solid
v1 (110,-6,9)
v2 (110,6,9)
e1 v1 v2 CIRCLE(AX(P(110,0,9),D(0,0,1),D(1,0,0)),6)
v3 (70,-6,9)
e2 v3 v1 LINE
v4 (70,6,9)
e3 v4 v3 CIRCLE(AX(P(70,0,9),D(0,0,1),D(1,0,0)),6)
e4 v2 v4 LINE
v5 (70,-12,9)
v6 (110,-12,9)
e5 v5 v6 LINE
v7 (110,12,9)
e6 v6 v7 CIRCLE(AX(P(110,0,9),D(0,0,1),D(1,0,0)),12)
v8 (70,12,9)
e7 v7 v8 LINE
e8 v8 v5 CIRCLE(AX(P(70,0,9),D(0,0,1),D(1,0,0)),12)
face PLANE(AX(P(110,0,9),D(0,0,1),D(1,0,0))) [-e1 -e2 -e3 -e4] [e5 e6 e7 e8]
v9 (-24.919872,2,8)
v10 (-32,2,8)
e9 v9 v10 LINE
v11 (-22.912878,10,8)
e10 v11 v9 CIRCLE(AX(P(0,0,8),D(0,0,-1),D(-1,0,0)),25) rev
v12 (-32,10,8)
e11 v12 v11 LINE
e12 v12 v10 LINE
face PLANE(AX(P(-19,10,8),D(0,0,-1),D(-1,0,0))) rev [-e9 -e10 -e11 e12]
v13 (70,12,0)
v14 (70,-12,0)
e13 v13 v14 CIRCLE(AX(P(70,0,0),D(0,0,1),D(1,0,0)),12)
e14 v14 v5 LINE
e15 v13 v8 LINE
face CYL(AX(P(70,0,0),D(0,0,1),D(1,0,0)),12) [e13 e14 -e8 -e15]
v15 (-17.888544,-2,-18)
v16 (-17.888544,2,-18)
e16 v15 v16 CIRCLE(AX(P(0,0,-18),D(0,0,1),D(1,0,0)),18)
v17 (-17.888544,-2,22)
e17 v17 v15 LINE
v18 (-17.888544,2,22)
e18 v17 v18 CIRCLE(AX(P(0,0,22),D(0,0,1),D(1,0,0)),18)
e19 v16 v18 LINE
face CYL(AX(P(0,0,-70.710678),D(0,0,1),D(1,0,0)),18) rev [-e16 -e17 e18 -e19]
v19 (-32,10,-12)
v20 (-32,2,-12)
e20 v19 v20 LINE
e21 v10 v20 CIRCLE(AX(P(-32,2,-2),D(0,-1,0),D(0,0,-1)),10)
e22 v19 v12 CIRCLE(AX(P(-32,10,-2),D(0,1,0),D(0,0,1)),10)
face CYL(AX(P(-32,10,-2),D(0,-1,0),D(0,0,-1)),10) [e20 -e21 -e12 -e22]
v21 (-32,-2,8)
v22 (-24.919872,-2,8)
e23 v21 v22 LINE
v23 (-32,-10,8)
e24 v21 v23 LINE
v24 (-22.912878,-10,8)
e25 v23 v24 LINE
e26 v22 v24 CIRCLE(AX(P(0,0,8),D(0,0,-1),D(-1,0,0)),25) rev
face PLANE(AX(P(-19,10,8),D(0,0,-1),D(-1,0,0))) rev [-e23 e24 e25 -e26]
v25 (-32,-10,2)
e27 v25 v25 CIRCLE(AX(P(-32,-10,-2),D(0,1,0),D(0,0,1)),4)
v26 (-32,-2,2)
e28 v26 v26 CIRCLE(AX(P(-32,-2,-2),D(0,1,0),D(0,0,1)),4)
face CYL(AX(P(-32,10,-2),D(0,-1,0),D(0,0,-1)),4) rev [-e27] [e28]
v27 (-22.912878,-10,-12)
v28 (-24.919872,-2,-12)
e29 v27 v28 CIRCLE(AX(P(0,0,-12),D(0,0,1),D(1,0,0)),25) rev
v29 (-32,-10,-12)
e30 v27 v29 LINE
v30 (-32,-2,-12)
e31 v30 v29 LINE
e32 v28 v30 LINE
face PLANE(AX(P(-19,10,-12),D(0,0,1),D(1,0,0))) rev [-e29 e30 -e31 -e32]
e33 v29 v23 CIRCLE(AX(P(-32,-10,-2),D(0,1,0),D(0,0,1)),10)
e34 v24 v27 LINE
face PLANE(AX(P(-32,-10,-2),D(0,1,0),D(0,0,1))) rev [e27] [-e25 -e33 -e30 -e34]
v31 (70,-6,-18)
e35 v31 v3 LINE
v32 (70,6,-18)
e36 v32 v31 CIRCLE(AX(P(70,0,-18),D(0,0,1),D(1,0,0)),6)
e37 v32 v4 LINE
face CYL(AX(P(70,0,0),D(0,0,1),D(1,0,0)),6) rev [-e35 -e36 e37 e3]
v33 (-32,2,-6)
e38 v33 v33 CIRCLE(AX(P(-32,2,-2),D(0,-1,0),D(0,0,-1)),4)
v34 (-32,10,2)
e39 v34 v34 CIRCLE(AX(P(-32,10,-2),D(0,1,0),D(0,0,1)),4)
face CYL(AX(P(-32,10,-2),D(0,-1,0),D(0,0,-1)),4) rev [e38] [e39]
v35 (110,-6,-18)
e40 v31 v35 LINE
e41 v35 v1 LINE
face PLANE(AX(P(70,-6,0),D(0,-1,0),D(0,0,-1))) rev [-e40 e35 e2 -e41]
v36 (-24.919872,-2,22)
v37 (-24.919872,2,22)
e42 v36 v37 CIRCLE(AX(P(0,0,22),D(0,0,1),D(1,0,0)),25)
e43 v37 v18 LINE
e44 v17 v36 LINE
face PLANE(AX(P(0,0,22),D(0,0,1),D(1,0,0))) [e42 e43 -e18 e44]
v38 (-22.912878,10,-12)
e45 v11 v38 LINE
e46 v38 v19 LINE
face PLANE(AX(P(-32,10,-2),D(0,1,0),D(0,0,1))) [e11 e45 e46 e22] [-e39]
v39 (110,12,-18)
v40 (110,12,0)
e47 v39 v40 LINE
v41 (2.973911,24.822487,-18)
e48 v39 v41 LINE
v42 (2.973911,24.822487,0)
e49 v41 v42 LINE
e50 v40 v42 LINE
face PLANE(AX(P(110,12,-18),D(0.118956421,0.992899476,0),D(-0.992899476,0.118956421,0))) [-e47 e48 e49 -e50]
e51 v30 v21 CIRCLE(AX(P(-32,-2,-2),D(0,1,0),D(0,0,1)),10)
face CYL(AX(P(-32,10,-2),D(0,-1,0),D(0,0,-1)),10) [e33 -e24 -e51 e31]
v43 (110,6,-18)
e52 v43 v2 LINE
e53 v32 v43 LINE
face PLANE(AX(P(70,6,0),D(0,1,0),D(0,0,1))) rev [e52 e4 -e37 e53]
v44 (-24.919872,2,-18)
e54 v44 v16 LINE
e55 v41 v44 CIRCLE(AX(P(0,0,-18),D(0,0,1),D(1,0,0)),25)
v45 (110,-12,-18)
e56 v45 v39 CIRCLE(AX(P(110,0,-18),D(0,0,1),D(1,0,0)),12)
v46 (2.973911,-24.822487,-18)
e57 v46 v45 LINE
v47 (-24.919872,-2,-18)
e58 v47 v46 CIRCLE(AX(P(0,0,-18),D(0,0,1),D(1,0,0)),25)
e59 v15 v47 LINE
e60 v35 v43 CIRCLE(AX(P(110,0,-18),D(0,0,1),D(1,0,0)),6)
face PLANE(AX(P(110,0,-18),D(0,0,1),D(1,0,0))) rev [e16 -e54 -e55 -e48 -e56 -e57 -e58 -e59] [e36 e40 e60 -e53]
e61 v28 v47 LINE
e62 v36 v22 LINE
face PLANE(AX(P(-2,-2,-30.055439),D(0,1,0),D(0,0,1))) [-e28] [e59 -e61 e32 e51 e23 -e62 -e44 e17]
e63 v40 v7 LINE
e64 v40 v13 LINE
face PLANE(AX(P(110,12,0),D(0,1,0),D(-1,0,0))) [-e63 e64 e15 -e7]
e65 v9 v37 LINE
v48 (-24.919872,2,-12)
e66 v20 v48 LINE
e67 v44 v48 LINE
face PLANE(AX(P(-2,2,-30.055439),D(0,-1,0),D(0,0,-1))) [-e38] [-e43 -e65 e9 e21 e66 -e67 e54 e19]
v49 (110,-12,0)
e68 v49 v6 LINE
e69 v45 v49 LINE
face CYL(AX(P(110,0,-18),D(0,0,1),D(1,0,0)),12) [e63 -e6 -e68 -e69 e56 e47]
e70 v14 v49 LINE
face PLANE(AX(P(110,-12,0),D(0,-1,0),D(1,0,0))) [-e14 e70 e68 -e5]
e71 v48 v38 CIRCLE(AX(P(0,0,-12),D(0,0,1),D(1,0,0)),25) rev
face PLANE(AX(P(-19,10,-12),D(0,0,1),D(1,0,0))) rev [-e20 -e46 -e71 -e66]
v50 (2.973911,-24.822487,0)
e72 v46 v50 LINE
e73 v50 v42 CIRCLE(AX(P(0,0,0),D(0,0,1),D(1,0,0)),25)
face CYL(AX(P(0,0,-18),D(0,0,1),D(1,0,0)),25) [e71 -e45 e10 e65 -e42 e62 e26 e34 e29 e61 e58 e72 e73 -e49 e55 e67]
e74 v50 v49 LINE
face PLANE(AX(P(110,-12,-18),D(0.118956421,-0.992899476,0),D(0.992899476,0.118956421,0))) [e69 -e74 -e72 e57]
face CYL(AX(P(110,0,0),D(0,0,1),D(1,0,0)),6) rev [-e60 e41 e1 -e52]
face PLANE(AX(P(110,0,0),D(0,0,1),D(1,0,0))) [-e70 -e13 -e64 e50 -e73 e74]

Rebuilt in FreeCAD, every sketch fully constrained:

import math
import FreeCAD as App
import Part
import Sketcher

V = App.Vector
Q = App.Units.Quantity


def add_polygon(sketch, points):
    """Adds a closed chain of lines whose ends are joined by coincident constraints."""
    first, n = sketch.GeometryCount, len(points)
    for a, b in zip(points, points[1:] + points[:1]):
        sketch.addGeometry(Part.LineSegment(App.Vector(*a, 0), App.Vector(*b, 0)), False)
    for i in range(n):
        sketch.addConstraint(Sketcher.Constraint("Coincident", first + i, 2, first + (i + 1) % n, 1))

doc = App.newDocument("Part")
body = doc.addObject("PartDesign::Body", "Body")

sketch1 = body.newObject("Sketcher::SketchObject", "Sketch")
sketch1.AttachmentSupport = (doc.getObject("XY_Plane"), [""])
sketch1.MapMode = "FlatFace"
sketch1.addGeometry(Part.LineSegment(V(110, 12, 0), V(3, 25, 0)), False)
sketch1.addGeometry(Part.ArcOfCircle(Part.Circle(V(0, 0, 0), V(0, 0, 1), 25), math.radians(83), math.radians(277)), False)
sketch1.addGeometry(Part.LineSegment(V(3, -25, 0), V(110, -12, 0)), False)
sketch1.addGeometry(Part.ArcOfCircle(Part.Circle(V(110, 0, 0), V(0, 0, 1), 12), math.radians(-90), math.radians(90)), False)
sketch1.addConstraint(Sketcher.Constraint("Tangent", 0, 2, 1, 1))
sketch1.addConstraint(Sketcher.Constraint("Tangent", 1, 2, 2, 1))
sketch1.addConstraint(Sketcher.Constraint("Coincident", 2, 2, 3, 1))
sketch1.addConstraint(Sketcher.Constraint("Coincident", 3, 2, 0, 1))
sketch1.addConstraint(Sketcher.Constraint("Coincident", 1, 3, -1, 1))
sketch1.addConstraint(Sketcher.Constraint("Symmetric", 2, 2, 3, 2, -1))
sketch1.addConstraint(Sketcher.Constraint("Vertical", 3, 3, 2, 2))
sketch1.addConstraint(Sketcher.Constraint("Radius", 1, Q("25 mm")))
sketch1.addConstraint(Sketcher.Constraint("Radius", 3, Q("12 mm")))
sketch1.addConstraint(Sketcher.Constraint("DistanceX", -1, 1, 3, 3, Q("110 mm")))
pad1 = body.newObject("PartDesign::Pad", "Pad")
pad1.Profile = sketch1
pad1.Length = 18
pad1.Reversed = True

sketch2 = body.newObject("Sketcher::SketchObject", "Sketch001")
sketch2.AttachmentSupport = (doc.getObject("XY_Plane"), [""])
sketch2.MapMode = "FlatFace"
sketch2.AttachmentOffset = App.Placement(V(0, 0, 9), App.Rotation())
sketch2.addGeometry(Part.LineSegment(V(70, -12, 0), V(110, -12, 0)), False)
sketch2.addGeometry(Part.ArcOfCircle(Part.Circle(V(110, 0, 0), V(0, 0, 1), 12), math.radians(-90), math.radians(90)), False)
sketch2.addGeometry(Part.LineSegment(V(110, 12, 0), V(70, 12, 0)), False)
sketch2.addGeometry(Part.ArcOfCircle(Part.Circle(V(70, 0, 0), V(0, 0, 1), 12), math.radians(90), math.radians(270)), False)
sketch2.addGeometry(Part.LineSegment(V(70, 6, 0), V(110, 6, 0)), False)
sketch2.addGeometry(Part.ArcOfCircle(Part.Circle(V(110, 0, 0), V(0, 0, 1), 6), math.radians(-90), math.radians(90)), False)
sketch2.addGeometry(Part.LineSegment(V(110, -6, 0), V(70, -6, 0)), False)
sketch2.addGeometry(Part.ArcOfCircle(Part.Circle(V(70, 0, 0), V(0, 0, 1), 6), math.radians(90), math.radians(270)), False)
sketch2.addConstraint(Sketcher.Constraint("Tangent", 0, 2, 1, 1))
sketch2.addConstraint(Sketcher.Constraint("Tangent", 1, 2, 2, 1))
sketch2.addConstraint(Sketcher.Constraint("Tangent", 2, 2, 3, 1))
sketch2.addConstraint(Sketcher.Constraint("Tangent", 3, 2, 0, 1))
sketch2.addConstraint(Sketcher.Constraint("Tangent", 4, 2, 5, 2))
sketch2.addConstraint(Sketcher.Constraint("Tangent", 5, 1, 6, 1))
sketch2.addConstraint(Sketcher.Constraint("Tangent", 6, 2, 7, 2))
sketch2.addConstraint(Sketcher.Constraint("Tangent", 7, 1, 4, 1))
sketch2.addConstraint(Sketcher.Constraint("Horizontal", 0))
sketch2.addConstraint(Sketcher.Constraint("Horizontal", 2))
sketch2.addConstraint(Sketcher.Constraint("Horizontal", 4))
sketch2.addConstraint(Sketcher.Constraint("Horizontal", 6))
sketch2.addConstraint(Sketcher.Constraint("Coincident", 5, 3, 1, 3))
sketch2.addConstraint(Sketcher.Constraint("PointOnObject", 1, 3, -1))
sketch2.addConstraint(Sketcher.Constraint("Vertical", 7, 3, 2, 2))
sketch2.addConstraint(Sketcher.Constraint("Radius", 1, Q("12 mm")))
sketch2.addConstraint(Sketcher.Constraint("Radius", 5, Q("6 mm")))
sketch2.addConstraint(Sketcher.Constraint("DistanceX", 0, 1, 0, 2, Q("40 mm")))
sketch2.addConstraint(Sketcher.Constraint("DistanceX", -1, 1, 1, 3, Q("110 mm")))
pad2 = body.newObject("PartDesign::Pad", "Pad001")
pad2.Profile = sketch2
pad2.Length = 9
pad2.Reversed = True

sketch3 = body.newObject("Sketcher::SketchObject", "Sketch002")
sketch3.AttachmentSupport = (doc.getObject("XY_Plane"), [""])
sketch3.MapMode = "FlatFace"
sketch3.AttachmentOffset = App.Placement(V(0, 0, 9), App.Rotation())
sketch3.addGeometry(Part.LineSegment(V(70, -6, 0), V(110, -6, 0)), False)
sketch3.addGeometry(Part.ArcOfCircle(Part.Circle(V(110, 0, 0), V(0, 0, 1), 6), math.radians(-90), math.radians(90)), False)
sketch3.addGeometry(Part.LineSegment(V(110, 6, 0), V(70, 6, 0)), False)
sketch3.addGeometry(Part.ArcOfCircle(Part.Circle(V(70, 0, 0), V(0, 0, 1), 6), math.radians(90), math.radians(270)), False)
sketch3.addConstraint(Sketcher.Constraint("Tangent", 0, 2, 1, 1))
sketch3.addConstraint(Sketcher.Constraint("Tangent", 1, 2, 2, 1))
sketch3.addConstraint(Sketcher.Constraint("Tangent", 2, 2, 3, 1))
sketch3.addConstraint(Sketcher.Constraint("Tangent", 3, 2, 0, 1))
sketch3.addConstraint(Sketcher.Constraint("Horizontal", 0))
sketch3.addConstraint(Sketcher.Constraint("Horizontal", 2))
sketch3.addConstraint(Sketcher.Constraint("PointOnObject", 1, 3, -1))
sketch3.addConstraint(Sketcher.Constraint("Radius", 1, Q("6 mm")))
sketch3.addConstraint(Sketcher.Constraint("DistanceX", 0, 1, 0, 2, Q("40 mm")))
sketch3.addConstraint(Sketcher.Constraint("DistanceX", -1, 1, 1, 3, Q("110 mm")))
pocket1 = body.newObject("PartDesign::Pocket", "Pocket")
pocket1.Profile = sketch3
pocket1.Type = "ThroughAll"

sketch4 = body.newObject("Sketcher::SketchObject", "Sketch003")
sketch4.AttachmentSupport = (doc.getObject("XY_Plane"), [""])
sketch4.MapMode = "FlatFace"
sketch4.AttachmentOffset = App.Placement(V(0, 0, 22), App.Rotation())
sketch4.addGeometry(Part.Circle(V(0, 0, 0), V(0, 0, 1), 25), False)
sketch4.addGeometry(Part.Circle(V(0, 0, 0), V(0, 0, 1), 18), False)
sketch4.addConstraint(Sketcher.Constraint("Coincident", 0, 3, -1, 1))
sketch4.addConstraint(Sketcher.Constraint("Coincident", 1, 3, -1, 1))
sketch4.addConstraint(Sketcher.Constraint("Diameter", 0, Q("50 mm")))
sketch4.addConstraint(Sketcher.Constraint("Diameter", 1, Q("36 mm")))
pad3 = body.newObject("PartDesign::Pad", "Pad002")
pad3.Profile = sketch4
pad3.Length = 22
pad3.Reversed = True

sketch5 = body.newObject("Sketcher::SketchObject", "Sketch004")
sketch5.AttachmentSupport = (doc.getObject("XY_Plane"), [""])
sketch5.MapMode = "FlatFace"
sketch5.AttachmentOffset = App.Placement(V(0, 0, 22), App.Rotation())
sketch5.addGeometry(Part.Circle(V(0, 0, 0), V(0, 0, 1), 18), False)
sketch5.addConstraint(Sketcher.Constraint("Coincident", 0, 3, -1, 1))
sketch5.addConstraint(Sketcher.Constraint("Diameter", 0, Q("36 mm")))
pocket2 = body.newObject("PartDesign::Pocket", "Pocket001")
pocket2.Profile = sketch5
pocket2.Type = "ThroughAll"

sketch6 = body.newObject("Sketcher::SketchObject", "Sketch005")
sketch6.AttachmentSupport = (doc.getObject("XZ_Plane"), [""])
sketch6.MapMode = "FlatFace"
sketch6.addGeometry(Part.LineSegment(V(-19, -12, 0), V(-32, -12, 0)), False)
sketch6.addGeometry(Part.ArcOfCircle(Part.Circle(V(-32, -2, 0), V(0, 0, 1), 10), math.radians(90), math.radians(270)), False)
sketch6.addGeometry(Part.LineSegment(V(-32, 8, 0), V(-19, 8, 0)), False)
sketch6.addGeometry(Part.LineSegment(V(-19, 8, 0), V(-19, -12, 0)), False)
sketch6.addGeometry(Part.Circle(V(-32, -2, 0), V(0, 0, 1), 4), False)
sketch6.addConstraint(Sketcher.Constraint("Tangent", 0, 2, 1, 2))
sketch6.addConstraint(Sketcher.Constraint("Tangent", 1, 1, 2, 1))
sketch6.addConstraint(Sketcher.Constraint("Coincident", 2, 2, 3, 1))
sketch6.addConstraint(Sketcher.Constraint("Coincident", 3, 2, 0, 1))
sketch6.addConstraint(Sketcher.Constraint("Horizontal", 0))
sketch6.addConstraint(Sketcher.Constraint("Horizontal", 2))
sketch6.addConstraint(Sketcher.Constraint("Vertical", 3))
sketch6.addConstraint(Sketcher.Constraint("Coincident", 4, 3, 1, 3))
sketch6.addConstraint(Sketcher.Constraint("Diameter", 4, Q("8 mm")))
sketch6.addConstraint(Sketcher.Constraint("Radius", 1, Q("10 mm")))
sketch6.addConstraint(Sketcher.Constraint("DistanceX", 0, 2, 0, 1, Q("13 mm")))
sketch6.addConstraint(Sketcher.Constraint("DistanceX", 1, 3, -1, 1, Q("32 mm")))
sketch6.addConstraint(Sketcher.Constraint("DistanceY", 1, 3, -1, 1, Q("2 mm")))
pad4 = body.newObject("PartDesign::Pad", "Pad003")
pad4.Profile = sketch6
pad4.Length = 20
pad4.Midplane = True

sketch7 = body.newObject("Sketcher::SketchObject", "Sketch006")
sketch7.AttachmentSupport = (doc.getObject("YZ_Plane"), [""])
sketch7.MapMode = "FlatFace"
sketch7.AttachmentOffset = App.Placement(V(0, 0, -42), App.Rotation())
add_polygon(sketch7, [(2, 27), (-2, 27), (-2, -30.1), (2, -30.1)])
sketch7.addConstraint(Sketcher.Constraint("Horizontal", 0))
sketch7.addConstraint(Sketcher.Constraint("Vertical", 1))
sketch7.addConstraint(Sketcher.Constraint("Horizontal", 2))
sketch7.addConstraint(Sketcher.Constraint("Vertical", 3))
sketch7.addConstraint(Sketcher.Constraint("DistanceX", 0, 2, 0, 1, Q("4 mm")))
sketch7.addConstraint(Sketcher.Constraint("DistanceX", 0, 2, -1, 1, Q("2 mm")))
sketch7.addConstraint(Sketcher.Constraint("DistanceY", 1, 2, 1, 1, Q("57.081854 mm")))
sketch7.addConstraint(Sketcher.Constraint("DistanceY", 1, 2, -1, 1, Q("30.055439 mm")))
pocket3 = body.newObject("PartDesign::Pocket", "Pocket002")
pocket3.Profile = sketch7
pocket3.Length = 40
pocket3.Reversed = True

doc.recompute()
